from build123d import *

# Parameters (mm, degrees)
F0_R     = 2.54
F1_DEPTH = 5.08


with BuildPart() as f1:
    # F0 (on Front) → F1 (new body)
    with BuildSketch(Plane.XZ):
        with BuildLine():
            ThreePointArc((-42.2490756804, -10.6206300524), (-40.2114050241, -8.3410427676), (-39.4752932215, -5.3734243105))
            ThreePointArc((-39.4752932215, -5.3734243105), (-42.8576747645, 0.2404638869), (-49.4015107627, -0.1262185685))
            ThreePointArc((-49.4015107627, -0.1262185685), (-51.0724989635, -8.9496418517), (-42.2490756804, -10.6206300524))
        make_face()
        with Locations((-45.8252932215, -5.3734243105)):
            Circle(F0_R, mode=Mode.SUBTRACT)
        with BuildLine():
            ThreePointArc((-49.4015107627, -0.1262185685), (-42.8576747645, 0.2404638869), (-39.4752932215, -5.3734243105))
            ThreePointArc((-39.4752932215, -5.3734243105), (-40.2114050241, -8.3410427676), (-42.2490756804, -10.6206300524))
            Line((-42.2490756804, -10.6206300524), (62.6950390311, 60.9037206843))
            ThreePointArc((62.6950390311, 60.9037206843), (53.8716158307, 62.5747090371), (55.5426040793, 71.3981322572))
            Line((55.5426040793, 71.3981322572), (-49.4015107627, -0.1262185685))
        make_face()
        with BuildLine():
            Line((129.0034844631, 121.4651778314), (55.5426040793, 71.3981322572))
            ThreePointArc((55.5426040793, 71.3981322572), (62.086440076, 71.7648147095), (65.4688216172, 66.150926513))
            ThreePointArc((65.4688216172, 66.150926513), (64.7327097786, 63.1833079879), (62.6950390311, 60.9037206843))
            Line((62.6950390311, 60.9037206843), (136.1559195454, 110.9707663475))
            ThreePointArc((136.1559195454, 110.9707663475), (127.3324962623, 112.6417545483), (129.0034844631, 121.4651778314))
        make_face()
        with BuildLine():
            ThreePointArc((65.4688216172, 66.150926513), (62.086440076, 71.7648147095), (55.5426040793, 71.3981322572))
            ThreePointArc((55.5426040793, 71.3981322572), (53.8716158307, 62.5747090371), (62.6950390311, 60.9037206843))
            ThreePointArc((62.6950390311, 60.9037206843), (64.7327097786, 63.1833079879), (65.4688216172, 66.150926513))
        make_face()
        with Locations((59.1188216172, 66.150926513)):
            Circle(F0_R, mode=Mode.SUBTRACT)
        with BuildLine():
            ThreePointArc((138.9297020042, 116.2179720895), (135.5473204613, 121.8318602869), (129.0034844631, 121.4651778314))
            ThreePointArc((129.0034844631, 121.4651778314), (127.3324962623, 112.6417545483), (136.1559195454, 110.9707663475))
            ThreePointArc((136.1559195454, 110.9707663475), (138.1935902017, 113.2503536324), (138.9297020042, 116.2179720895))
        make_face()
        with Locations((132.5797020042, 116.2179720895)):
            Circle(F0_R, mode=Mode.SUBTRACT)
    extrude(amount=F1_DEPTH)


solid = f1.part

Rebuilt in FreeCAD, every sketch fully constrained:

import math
import FreeCAD as App
import Part
import Sketcher

V = App.Vector
Q = App.Units.Quantity

doc = App.newDocument("Part")
params = doc.addObject("Spreadsheet::Sheet", "Params")
for row, (alias, value) in enumerate([
    ("sketch1_diameter", "0.2 in"),
    ("sketch1_radius", "0.25 in"),
    ("sketch1_length", "5 in"),
    ("sketch1_length2", "3.5 in"),
    ("pad1_length", "0.2 in"),
], start=1):
    params.set(f"A{row}", alias)
    params.set(f"B{row}", "=" + value)
    params.setAlias(f"B{row}", alias)

body = doc.addObject("PartDesign::Body", "Body")

# Sketch on XZ plane
sketch1 = body.newObject("Sketcher::SketchObject", "Sketch")
sketch1.AttachmentSupport = (doc.getObject("XZ_Plane"), [""])
sketch1.MapMode = "FlatFace"
sketch1.addGeometry([
    Part.ArcOfCircle(Part.Circle(V(-45.8, -5.4, 0), V(0, 0, 1), 6.3), math.radians(124), math.radians(304)),  # 0
    Part.LineSegment(V(-42.2, -10.6, 0), V(62.7, 60.9, 0)),  # 1
    Part.LineSegment(V(62.7, 60.9, 0), V(136.2, 111, 0)),  # 2
    Part.ArcOfCircle(Part.Circle(V(132.6, 116.2, 0), V(0, 0, 1), 6.3), math.radians(-56), math.radians(0)),  # 3
    Part.ArcOfCircle(Part.Circle(V(132.6, 116.2, 0), V(0, 0, 1), 6.3), math.radians(0), math.radians(124)),  # 4
    Part.LineSegment(V(129, 121.5, 0), V(-49.4, -0.1, 0)),  # 5
    Part.Circle(V(-45.8, -5.4, 0), V(0, 0, 1), 2.5),  # 6
    Part.Circle(V(59.1, 66.2, 0), V(0, 0, 1), 2.5),  # 7
    Part.Circle(V(132.6, 116.2, 0), V(0, 0, 1), 2.5),  # 8
], False)
sketch1.addConstraint([
    Sketcher.Constraint("Tangent", 0, 2, 1, 1),
    Sketcher.Constraint("Coincident", 1, 2, 2, 1),
    Sketcher.Constraint("Tangent", 2, 2, 3, 1),
    Sketcher.Constraint("Tangent", 3, 2, 4, 1),
    Sketcher.Constraint("Tangent", 4, 2, 5, 1),
    Sketcher.Constraint("Tangent", 5, 2, 0, 1),
    Sketcher.Constraint("Coincident", 6, 3, 0, 3),
    Sketcher.Constraint("Coincident", 8, 3, 3, 3),
    Sketcher.Constraint("Equal", 0, 3),
    Sketcher.Constraint("Equal", 3, 4),
    Sketcher.Constraint("Equal", 6, 7),
    Sketcher.Constraint("Equal", 7, 8),
    Sketcher.Constraint("Parallel", 1, 2),
    Sketcher.Constraint("Horizontal", 8, 3, 3, 2),
    Sketcher.Constraint("Diameter", 6, Q("0.2 in")),
    Sketcher.Constraint("Radius", 0, Q("0.25 in")),
    Sketcher.Constraint("Distance", 1, Q("5 in")),
    Sketcher.Constraint("Distance", 2, Q("3.5 in")),
    Sketcher.Constraint("DistanceX", -1, 1, 7, 3, 59.118822),
    Sketcher.Constraint("DistanceY", 0, 2, -1, 1, 10.62063),
    Sketcher.Constraint("DistanceX", -1, 1, 1, 2, 62.695039),
    Sketcher.Constraint("DistanceY", -1, 1, 1, 2, 60.903721),
    Sketcher.Constraint("DistanceY", 6, 3, 7, 3, 71.524351),
])
sketch1.setExpression("Constraints[14]", "Params.sketch1_diameter")
sketch1.setExpression("Constraints[15]", "Params.sketch1_radius")
sketch1.setExpression("Constraints[16]", "Params.sketch1_length")
sketch1.setExpression("Constraints[17]", "Params.sketch1_length2")
pad1 = body.newObject("PartDesign::Pad", "Pad")
pad1.Profile = sketch1
pad1.setExpression("Length", "Params.pad1_length")

doc.recompute()
